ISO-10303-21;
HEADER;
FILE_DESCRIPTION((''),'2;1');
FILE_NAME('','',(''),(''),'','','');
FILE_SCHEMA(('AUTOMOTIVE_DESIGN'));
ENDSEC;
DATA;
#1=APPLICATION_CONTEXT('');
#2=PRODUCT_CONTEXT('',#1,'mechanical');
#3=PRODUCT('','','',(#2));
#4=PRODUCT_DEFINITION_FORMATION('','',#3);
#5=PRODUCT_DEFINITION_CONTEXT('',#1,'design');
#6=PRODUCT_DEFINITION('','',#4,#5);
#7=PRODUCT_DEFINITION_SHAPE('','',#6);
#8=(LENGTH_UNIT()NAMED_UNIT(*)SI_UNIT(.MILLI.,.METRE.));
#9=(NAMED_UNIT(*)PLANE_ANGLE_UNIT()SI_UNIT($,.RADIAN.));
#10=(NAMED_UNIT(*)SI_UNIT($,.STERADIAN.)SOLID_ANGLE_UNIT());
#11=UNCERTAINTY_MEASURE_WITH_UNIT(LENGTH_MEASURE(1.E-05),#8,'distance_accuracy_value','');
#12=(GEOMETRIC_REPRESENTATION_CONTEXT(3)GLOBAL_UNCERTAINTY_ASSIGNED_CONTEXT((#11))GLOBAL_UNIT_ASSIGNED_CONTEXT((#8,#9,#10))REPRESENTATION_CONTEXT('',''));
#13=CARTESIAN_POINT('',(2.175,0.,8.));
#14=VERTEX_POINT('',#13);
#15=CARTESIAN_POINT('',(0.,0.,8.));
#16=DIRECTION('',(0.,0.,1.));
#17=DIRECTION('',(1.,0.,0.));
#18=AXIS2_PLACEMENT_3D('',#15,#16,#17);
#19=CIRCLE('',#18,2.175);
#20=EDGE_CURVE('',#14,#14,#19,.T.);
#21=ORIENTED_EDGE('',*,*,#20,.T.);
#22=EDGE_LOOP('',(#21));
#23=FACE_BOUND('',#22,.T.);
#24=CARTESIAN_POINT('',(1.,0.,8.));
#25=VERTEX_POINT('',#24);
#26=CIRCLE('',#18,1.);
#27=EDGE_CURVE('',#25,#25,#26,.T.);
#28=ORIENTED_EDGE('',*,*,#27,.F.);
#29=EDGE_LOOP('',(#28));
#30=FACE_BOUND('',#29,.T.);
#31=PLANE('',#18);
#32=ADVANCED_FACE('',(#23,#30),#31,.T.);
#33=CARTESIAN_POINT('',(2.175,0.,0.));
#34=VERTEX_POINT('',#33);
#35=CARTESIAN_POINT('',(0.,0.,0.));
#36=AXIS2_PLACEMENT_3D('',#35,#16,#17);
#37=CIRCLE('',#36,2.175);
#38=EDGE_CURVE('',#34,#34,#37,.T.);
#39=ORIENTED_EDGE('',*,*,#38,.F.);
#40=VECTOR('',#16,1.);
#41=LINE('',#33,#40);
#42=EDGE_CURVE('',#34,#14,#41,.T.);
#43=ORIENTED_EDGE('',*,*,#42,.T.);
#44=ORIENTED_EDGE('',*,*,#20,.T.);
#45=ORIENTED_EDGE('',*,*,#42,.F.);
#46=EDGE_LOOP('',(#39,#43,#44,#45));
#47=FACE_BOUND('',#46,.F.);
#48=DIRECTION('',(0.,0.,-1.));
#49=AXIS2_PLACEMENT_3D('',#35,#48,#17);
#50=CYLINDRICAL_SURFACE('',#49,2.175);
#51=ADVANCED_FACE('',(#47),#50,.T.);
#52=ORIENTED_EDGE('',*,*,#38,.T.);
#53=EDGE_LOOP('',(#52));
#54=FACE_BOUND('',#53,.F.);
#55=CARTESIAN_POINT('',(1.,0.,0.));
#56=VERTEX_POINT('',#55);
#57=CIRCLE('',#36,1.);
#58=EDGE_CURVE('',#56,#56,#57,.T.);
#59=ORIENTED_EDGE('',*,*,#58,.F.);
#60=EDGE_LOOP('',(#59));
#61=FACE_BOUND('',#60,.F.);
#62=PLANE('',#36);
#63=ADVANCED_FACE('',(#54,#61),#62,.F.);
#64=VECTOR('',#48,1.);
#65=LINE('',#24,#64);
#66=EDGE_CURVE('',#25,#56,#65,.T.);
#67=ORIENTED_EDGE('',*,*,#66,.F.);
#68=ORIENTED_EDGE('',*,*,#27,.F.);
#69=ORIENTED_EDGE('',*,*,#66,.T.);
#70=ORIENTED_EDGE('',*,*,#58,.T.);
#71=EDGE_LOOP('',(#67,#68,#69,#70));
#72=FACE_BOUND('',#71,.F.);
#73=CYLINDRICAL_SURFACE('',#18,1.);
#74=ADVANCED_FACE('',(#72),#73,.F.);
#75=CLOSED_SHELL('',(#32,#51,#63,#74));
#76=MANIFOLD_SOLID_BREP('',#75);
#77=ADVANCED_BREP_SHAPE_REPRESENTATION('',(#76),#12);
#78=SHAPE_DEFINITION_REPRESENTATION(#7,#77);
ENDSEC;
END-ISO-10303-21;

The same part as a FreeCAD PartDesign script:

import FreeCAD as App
import Part
import Sketcher
from FreeCAD import Vector
Q = App.Units.Quantity

doc = App.newDocument("Part")
body = doc.addObject("PartDesign::Body", "Body")

# Sketch on XY plane
sketch1 = body.newObject("Sketcher::SketchObject", "Sketch")
sketch1.AttachmentSupport = (doc.getObject("XY_Plane"), [""])
sketch1.MapMode = "FlatFace"
sketch1.addGeometry(Part.Circle(Vector(0, 0, 0), Vector(0, 0, 1), 2.175), False)
sketch1.addConstraint([
    Sketcher.Constraint("Coincident", 0, 3, -1, 1),
    Sketcher.Constraint("Diameter", 0, Q("4.35 mm")),
])
pad1 = body.newObject("PartDesign::Pad", "Pad")
pad1.Profile = sketch1
pad1.Length = 8

# Sketch on XY plane
sketch2 = body.newObject("Sketcher::SketchObject", "Sketch001")
sketch2.AttachmentSupport = (doc.getObject("XY_Plane"), [""])
sketch2.MapMode = "FlatFace"
sketch2.AttachmentOffset = App.Placement(Vector(0, 0, 8), App.Rotation())
sketch2.addGeometry(Part.Circle(Vector(0, 0, 0), Vector(0, 0, 1), 1), False)
sketch2.addConstraint([
    Sketcher.Constraint("Coincident", 0, 3, -1, 1),
    Sketcher.Constraint("Diameter", 0, Q("2 mm")),
])
pocket1 = body.newObject("PartDesign::Pocket", "Pocket")
pocket1.Profile = sketch2
pocket1.Type = "ThroughAll"

doc.recompute()
